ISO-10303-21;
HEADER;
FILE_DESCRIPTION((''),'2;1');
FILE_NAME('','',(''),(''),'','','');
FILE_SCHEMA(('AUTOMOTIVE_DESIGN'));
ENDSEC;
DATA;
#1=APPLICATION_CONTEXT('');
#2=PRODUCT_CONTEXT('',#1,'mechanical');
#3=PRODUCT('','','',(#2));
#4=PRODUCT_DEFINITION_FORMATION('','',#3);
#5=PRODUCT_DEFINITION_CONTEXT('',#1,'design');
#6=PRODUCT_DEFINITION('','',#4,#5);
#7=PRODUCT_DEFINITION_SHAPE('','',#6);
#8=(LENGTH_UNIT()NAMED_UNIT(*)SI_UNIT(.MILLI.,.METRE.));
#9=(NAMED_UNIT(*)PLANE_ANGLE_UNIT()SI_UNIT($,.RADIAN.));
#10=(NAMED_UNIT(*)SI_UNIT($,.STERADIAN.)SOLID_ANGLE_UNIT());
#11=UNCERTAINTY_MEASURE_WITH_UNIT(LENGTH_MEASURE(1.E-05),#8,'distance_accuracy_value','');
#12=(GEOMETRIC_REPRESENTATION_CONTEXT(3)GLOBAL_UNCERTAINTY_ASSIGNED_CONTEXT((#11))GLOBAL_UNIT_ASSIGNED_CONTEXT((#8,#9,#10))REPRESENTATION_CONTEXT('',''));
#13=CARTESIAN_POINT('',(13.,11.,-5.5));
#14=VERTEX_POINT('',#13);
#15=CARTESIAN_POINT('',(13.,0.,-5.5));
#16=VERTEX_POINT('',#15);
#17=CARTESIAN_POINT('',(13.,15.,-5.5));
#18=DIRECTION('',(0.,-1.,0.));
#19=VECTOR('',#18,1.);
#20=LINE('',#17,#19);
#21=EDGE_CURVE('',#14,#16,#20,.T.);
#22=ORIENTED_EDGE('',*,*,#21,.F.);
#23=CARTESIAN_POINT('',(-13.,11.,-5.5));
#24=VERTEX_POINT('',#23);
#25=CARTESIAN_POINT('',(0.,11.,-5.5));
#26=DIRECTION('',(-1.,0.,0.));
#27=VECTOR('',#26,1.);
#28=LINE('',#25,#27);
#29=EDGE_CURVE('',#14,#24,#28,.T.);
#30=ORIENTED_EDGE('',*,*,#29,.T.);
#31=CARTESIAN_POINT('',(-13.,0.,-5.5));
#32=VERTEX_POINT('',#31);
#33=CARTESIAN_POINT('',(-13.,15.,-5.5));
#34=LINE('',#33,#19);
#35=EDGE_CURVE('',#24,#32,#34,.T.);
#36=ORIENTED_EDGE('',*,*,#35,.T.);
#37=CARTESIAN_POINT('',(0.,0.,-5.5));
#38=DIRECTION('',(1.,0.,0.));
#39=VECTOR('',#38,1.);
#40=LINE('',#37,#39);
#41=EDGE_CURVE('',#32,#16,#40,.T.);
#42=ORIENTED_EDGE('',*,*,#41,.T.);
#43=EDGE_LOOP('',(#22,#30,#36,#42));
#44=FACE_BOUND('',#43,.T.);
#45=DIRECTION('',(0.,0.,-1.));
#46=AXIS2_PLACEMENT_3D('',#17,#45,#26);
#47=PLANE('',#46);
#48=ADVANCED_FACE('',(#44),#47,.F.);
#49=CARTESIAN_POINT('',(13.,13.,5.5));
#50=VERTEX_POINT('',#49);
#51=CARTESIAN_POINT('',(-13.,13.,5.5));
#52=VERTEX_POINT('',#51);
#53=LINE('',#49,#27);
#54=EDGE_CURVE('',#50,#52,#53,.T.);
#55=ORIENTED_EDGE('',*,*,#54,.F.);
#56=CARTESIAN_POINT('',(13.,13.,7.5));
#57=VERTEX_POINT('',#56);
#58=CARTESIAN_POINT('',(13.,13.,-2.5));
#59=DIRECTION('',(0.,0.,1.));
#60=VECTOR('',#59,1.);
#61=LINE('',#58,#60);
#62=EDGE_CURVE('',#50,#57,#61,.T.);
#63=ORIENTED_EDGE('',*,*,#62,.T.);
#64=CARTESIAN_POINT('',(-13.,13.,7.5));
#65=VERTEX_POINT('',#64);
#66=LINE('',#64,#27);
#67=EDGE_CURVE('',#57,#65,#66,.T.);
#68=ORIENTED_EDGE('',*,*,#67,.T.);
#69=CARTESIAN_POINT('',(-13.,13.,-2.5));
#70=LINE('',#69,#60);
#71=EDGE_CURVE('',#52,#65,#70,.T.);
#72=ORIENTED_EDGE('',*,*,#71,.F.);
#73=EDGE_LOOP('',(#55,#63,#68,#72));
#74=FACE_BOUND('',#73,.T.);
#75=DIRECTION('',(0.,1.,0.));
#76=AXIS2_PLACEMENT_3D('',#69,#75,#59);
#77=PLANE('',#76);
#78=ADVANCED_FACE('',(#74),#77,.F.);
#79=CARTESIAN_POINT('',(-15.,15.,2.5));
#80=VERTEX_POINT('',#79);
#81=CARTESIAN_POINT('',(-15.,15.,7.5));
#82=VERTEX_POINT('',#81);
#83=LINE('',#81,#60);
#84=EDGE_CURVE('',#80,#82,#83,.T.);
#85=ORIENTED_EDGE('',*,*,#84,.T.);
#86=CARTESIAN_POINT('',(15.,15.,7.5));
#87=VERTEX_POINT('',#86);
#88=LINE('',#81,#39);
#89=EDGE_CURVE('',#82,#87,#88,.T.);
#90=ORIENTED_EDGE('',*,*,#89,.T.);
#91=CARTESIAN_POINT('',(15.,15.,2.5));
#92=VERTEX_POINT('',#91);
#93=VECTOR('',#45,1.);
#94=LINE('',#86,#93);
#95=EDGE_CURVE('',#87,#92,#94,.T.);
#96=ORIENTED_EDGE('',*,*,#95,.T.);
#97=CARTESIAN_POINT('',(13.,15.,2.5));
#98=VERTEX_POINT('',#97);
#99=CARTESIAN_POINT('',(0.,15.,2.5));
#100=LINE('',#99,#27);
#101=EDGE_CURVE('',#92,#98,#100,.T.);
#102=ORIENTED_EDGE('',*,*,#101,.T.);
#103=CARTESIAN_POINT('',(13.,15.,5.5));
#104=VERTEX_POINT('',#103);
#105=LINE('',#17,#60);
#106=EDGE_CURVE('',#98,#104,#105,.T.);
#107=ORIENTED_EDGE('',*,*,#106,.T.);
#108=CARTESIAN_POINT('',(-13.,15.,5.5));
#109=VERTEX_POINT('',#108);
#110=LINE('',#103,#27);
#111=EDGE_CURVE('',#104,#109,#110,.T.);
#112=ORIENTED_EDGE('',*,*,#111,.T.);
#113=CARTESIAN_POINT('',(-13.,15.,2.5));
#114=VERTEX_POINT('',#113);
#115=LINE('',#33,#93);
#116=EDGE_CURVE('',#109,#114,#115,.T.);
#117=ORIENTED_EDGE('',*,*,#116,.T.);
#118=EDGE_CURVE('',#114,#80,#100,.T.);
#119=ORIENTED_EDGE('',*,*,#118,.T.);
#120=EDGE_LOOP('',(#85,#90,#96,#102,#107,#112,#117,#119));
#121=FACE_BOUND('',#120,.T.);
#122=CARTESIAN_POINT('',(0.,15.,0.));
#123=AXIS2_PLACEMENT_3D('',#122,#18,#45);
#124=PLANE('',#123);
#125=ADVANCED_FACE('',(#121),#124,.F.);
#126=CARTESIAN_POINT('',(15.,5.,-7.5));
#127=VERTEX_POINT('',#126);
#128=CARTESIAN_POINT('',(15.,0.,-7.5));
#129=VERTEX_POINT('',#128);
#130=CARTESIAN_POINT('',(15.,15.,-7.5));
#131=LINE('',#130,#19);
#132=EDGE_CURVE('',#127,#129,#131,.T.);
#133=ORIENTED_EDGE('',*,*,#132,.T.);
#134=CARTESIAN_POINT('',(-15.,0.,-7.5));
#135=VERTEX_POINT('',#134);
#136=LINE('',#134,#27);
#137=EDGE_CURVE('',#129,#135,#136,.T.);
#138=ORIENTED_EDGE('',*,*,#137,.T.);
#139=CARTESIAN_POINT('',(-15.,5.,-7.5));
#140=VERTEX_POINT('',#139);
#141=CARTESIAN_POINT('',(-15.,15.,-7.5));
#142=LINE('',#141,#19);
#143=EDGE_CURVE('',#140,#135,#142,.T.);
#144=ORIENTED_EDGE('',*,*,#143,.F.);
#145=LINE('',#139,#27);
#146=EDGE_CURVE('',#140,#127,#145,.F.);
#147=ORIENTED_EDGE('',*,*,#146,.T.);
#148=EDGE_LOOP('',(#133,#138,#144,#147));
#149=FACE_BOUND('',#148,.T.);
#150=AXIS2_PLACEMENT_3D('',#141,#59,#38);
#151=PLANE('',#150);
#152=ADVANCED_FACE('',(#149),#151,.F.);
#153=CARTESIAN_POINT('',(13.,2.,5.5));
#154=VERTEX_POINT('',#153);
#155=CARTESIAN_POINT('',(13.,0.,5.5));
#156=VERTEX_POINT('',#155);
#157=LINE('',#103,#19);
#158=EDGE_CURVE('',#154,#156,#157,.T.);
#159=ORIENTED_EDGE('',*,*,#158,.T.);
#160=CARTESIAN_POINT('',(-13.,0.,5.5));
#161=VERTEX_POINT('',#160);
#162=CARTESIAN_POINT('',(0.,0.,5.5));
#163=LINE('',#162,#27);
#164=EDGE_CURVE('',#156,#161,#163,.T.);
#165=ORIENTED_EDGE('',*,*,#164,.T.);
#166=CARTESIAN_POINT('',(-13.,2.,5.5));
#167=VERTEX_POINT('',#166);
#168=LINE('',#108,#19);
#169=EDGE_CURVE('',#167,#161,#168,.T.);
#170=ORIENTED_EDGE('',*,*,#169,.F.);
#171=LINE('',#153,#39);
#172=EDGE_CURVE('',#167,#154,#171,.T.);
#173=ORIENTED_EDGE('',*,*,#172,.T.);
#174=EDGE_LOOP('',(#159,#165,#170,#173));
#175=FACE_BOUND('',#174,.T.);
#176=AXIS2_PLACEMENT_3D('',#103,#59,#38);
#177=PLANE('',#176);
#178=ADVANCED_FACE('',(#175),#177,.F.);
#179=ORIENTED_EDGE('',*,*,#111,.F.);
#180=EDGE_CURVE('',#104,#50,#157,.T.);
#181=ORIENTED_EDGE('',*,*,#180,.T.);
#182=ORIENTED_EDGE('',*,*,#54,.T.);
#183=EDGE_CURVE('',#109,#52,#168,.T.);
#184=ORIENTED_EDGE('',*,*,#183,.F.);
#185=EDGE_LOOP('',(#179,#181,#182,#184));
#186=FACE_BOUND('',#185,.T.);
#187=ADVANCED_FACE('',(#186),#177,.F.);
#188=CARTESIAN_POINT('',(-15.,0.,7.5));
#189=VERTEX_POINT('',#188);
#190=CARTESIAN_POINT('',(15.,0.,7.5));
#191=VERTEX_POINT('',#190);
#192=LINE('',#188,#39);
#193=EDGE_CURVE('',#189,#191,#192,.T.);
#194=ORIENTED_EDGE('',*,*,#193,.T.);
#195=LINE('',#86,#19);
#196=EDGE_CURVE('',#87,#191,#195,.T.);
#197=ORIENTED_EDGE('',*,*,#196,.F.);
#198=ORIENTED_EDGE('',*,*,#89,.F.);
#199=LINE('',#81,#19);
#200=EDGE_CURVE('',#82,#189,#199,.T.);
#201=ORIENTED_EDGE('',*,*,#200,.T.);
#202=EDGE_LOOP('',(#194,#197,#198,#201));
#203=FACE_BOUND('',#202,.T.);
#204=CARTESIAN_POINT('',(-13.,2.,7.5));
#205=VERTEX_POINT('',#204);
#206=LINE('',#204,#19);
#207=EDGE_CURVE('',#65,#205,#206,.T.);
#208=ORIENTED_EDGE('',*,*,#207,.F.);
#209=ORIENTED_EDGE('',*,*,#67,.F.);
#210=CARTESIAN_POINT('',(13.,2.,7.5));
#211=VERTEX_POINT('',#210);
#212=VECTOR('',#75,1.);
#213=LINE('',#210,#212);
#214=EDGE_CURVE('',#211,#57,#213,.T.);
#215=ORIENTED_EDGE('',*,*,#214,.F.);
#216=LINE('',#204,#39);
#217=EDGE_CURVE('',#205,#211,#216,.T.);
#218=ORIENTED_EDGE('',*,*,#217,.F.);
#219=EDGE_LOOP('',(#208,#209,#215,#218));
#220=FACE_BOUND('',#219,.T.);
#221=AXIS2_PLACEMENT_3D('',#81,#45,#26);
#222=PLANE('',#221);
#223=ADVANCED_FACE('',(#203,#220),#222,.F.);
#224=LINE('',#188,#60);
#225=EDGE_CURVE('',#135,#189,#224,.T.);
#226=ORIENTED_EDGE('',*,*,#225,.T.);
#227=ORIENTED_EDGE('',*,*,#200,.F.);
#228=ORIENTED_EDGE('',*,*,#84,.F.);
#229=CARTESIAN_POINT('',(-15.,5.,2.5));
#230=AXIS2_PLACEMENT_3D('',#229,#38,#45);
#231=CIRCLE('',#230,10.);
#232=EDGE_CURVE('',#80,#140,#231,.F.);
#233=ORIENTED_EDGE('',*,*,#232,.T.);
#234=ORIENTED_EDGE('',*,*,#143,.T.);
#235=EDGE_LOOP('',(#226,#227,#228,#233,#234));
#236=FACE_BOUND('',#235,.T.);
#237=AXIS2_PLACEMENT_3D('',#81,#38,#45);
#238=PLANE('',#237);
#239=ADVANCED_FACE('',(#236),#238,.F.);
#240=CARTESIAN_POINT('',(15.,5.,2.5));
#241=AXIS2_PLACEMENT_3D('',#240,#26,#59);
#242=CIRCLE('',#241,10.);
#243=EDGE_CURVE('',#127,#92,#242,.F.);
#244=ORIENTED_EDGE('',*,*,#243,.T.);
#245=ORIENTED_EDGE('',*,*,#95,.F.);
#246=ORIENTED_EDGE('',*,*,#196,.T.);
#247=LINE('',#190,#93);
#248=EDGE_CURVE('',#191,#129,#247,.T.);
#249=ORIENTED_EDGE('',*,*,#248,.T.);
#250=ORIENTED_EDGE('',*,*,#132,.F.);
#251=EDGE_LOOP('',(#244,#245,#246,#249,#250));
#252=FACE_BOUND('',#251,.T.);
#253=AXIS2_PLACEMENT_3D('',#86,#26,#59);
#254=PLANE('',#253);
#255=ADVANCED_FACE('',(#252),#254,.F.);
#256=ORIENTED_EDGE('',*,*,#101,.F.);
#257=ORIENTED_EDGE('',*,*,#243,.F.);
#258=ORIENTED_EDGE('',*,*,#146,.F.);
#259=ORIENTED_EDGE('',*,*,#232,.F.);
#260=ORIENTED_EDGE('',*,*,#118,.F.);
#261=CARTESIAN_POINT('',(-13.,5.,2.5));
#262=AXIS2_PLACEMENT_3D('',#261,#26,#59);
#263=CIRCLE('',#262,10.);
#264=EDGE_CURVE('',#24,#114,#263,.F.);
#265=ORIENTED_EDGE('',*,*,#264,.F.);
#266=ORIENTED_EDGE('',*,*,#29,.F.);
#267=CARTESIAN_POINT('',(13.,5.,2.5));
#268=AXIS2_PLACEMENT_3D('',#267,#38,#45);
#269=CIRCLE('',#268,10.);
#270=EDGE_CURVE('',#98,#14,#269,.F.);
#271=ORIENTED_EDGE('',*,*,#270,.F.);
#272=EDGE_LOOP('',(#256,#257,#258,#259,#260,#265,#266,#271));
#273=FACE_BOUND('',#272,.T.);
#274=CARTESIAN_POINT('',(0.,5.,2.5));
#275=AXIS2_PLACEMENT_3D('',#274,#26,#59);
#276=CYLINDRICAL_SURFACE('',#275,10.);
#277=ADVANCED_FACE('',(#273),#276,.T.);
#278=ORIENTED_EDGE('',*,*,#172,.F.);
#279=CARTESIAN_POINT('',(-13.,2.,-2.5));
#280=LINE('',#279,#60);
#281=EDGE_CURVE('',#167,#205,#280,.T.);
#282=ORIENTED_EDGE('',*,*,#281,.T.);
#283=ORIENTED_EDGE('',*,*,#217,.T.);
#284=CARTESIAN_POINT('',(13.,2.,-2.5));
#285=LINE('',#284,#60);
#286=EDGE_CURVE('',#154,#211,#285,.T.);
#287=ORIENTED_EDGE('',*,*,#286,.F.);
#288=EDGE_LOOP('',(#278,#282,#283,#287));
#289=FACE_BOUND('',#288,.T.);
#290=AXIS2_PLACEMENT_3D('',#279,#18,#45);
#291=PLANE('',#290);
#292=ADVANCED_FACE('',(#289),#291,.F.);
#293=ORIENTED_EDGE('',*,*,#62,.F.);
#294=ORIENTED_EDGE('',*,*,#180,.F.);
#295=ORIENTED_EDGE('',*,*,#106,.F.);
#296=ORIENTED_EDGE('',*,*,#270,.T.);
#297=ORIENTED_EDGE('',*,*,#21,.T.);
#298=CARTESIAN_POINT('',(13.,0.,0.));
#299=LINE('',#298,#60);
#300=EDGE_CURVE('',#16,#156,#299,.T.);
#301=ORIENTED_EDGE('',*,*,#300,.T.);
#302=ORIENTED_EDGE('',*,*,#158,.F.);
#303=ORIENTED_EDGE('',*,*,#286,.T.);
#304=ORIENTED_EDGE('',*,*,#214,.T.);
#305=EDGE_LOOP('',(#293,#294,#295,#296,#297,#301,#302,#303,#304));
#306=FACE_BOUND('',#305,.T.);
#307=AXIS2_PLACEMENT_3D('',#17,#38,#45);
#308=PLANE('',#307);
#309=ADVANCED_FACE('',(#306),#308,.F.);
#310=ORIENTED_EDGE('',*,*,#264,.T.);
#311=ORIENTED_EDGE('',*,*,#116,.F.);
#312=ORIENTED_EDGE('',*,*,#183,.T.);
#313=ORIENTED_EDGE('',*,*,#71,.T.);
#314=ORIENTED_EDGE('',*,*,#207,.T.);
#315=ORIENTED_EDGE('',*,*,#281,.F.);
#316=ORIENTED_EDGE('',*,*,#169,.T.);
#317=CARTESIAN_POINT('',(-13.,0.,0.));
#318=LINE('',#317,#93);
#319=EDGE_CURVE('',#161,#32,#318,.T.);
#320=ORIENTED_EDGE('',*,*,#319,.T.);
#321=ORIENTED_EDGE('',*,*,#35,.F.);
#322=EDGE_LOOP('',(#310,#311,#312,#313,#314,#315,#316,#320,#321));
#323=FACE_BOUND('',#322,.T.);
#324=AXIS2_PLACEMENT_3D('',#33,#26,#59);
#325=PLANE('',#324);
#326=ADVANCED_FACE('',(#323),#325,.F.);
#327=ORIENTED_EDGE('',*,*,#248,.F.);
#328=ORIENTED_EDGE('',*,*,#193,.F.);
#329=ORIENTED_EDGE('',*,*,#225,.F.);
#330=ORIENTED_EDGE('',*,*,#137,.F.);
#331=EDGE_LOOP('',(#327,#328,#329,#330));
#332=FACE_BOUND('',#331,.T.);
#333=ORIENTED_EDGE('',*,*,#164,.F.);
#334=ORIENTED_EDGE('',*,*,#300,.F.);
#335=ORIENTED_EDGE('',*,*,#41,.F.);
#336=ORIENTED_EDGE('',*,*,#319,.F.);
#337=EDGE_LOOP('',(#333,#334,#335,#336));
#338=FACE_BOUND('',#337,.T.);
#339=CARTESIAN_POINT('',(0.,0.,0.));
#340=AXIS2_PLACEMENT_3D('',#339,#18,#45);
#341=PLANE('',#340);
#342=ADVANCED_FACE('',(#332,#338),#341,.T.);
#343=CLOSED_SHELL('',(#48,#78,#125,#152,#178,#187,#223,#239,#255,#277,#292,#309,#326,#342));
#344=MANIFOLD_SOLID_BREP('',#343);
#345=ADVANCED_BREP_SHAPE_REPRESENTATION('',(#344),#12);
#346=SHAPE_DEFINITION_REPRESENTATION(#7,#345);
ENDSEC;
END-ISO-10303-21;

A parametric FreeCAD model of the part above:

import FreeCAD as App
import Part
import Sketcher


def edges_at(feature, points):
    """Names of the edges that pass closest to the given points."""
    edges = feature.Shape.Edges
    near = lambda p: min(range(len(edges)), key=lambda i: edges[i].distToShape(Part.Vertex(*p))[0])
    return sorted({f"Edge{near(p) + 1}" for p in points})


def add_polygon(sketch, points):
    """Adds a closed chain of lines whose ends are joined by coincident constraints."""
    first, n = sketch.GeometryCount, len(points)
    for a, b in zip(points, points[1:] + points[:1]):
        sketch.addGeometry(Part.LineSegment(App.Vector(*a, 0), App.Vector(*b, 0)), False)
    for i in range(n):
        sketch.addConstraint(Sketcher.Constraint("Coincident", first + i, 2, first + (i + 1) % n, 1))

doc = App.newDocument("Part")
body = doc.addObject("PartDesign::Body", "Body")

# Sketch on XZ plane
sketch1 = body.newObject("Sketcher::SketchObject", "Sketch")
sketch1.AttachmentSupport = (doc.getObject("XZ_Plane"), [""])
sketch1.MapMode = "FlatFace"
add_polygon(sketch1, [(-15, -8), (-15, 8), (15, 8), (15, -8)])  # lines 0-3
sketch1.addConstraint(Sketcher.Constraint("Vertical", 0))
sketch1.addConstraint(Sketcher.Constraint("Horizontal", 1))
sketch1.addConstraint(Sketcher.Constraint("Vertical", 2))
sketch1.addConstraint(Sketcher.Constraint("Horizontal", 3))
sketch1.addConstraint(Sketcher.Constraint("Symmetric", 0, 2, 2, 2, -1, 1))
sketch1.addConstraint(Sketcher.Constraint("DistanceX", 1, 1, 1, 2, 30.0))
sketch1.addConstraint(Sketcher.Constraint("DistanceY", 0, 1, 0, 2, 15.0))
pad1 = body.newObject("PartDesign::Pad", "Pad")
pad1.Profile = sketch1
pad1.Length = 15
pad1.Reversed = True
doc.recompute()

fillet = body.newObject("PartDesign::Fillet", "Fillet")
fillet.Base = (pad1, edges_at(pad1, [(0, 15, -7.5)]))
fillet.Radius = 10

# Sketch on XZ plane
sketch2 = body.newObject("Sketcher::SketchObject", "Sketch001")
sketch2.AttachmentSupport = (doc.getObject("XZ_Plane"), [""])
sketch2.MapMode = "FlatFace"
add_polygon(sketch2, [(-13, 6), (-13, -6), (13, -6), (13, 6)])  # lines 0-3
sketch2.addConstraint(Sketcher.Constraint("Vertical", 0))
sketch2.addConstraint(Sketcher.Constraint("Horizontal", 1))
sketch2.addConstraint(Sketcher.Constraint("Vertical", 2))
sketch2.addConstraint(Sketcher.Constraint("Horizontal", 3))
sketch2.addConstraint(Sketcher.Constraint("Symmetric", 0, 2, 2, 2, -1, 1))
sketch2.addConstraint(Sketcher.Constraint("DistanceX", 1, 1, 1, 2, 26.0))
sketch2.addConstraint(Sketcher.Constraint("DistanceY", 0, 2, 0, 1, 11.0))
pocket1 = body.newObject("PartDesign::Pocket", "Pocket")
pocket1.Profile = sketch2
pocket1.Type = "ThroughAll"
pocket1.Midplane = True

# Sketch on XY plane
sketch3 = body.newObject("Sketcher::SketchObject", "Sketch002")
sketch3.AttachmentSupport = (doc.getObject("XY_Plane"), [""])
sketch3.MapMode = "FlatFace"
sketch3.AttachmentOffset = App.Placement(App.Vector(0, 0, 7.5), App.Rotation())
add_polygon(sketch3, [(-13, 13), (-13, 2), (13, 2), (13, 13)])  # lines 0-3
sketch3.addConstraint(Sketcher.Constraint("Vertical", 0))
sketch3.addConstraint(Sketcher.Constraint("Horizontal", 1))
sketch3.addConstraint(Sketcher.Constraint("Vertical", 2))
sketch3.addConstraint(Sketcher.Constraint("Horizontal", 3))
sketch3.addConstraint(Sketcher.Constraint("DistanceX", 1, 1, 1, 2, 26.0))
sketch3.addConstraint(Sketcher.Constraint("DistanceY", 0, 2, 0, 1, 11.0))
sketch3.addConstraint(Sketcher.Constraint("DistanceX", 0, 2, -1, 1, 13.0))
sketch3.addConstraint(Sketcher.Constraint("DistanceY", -1, 1, 0, 2, 2.0))
pocket2 = body.newObject("PartDesign::Pocket", "Pocket001")
pocket2.Profile = sketch3
pocket2.Length = 10

doc.recompute()
